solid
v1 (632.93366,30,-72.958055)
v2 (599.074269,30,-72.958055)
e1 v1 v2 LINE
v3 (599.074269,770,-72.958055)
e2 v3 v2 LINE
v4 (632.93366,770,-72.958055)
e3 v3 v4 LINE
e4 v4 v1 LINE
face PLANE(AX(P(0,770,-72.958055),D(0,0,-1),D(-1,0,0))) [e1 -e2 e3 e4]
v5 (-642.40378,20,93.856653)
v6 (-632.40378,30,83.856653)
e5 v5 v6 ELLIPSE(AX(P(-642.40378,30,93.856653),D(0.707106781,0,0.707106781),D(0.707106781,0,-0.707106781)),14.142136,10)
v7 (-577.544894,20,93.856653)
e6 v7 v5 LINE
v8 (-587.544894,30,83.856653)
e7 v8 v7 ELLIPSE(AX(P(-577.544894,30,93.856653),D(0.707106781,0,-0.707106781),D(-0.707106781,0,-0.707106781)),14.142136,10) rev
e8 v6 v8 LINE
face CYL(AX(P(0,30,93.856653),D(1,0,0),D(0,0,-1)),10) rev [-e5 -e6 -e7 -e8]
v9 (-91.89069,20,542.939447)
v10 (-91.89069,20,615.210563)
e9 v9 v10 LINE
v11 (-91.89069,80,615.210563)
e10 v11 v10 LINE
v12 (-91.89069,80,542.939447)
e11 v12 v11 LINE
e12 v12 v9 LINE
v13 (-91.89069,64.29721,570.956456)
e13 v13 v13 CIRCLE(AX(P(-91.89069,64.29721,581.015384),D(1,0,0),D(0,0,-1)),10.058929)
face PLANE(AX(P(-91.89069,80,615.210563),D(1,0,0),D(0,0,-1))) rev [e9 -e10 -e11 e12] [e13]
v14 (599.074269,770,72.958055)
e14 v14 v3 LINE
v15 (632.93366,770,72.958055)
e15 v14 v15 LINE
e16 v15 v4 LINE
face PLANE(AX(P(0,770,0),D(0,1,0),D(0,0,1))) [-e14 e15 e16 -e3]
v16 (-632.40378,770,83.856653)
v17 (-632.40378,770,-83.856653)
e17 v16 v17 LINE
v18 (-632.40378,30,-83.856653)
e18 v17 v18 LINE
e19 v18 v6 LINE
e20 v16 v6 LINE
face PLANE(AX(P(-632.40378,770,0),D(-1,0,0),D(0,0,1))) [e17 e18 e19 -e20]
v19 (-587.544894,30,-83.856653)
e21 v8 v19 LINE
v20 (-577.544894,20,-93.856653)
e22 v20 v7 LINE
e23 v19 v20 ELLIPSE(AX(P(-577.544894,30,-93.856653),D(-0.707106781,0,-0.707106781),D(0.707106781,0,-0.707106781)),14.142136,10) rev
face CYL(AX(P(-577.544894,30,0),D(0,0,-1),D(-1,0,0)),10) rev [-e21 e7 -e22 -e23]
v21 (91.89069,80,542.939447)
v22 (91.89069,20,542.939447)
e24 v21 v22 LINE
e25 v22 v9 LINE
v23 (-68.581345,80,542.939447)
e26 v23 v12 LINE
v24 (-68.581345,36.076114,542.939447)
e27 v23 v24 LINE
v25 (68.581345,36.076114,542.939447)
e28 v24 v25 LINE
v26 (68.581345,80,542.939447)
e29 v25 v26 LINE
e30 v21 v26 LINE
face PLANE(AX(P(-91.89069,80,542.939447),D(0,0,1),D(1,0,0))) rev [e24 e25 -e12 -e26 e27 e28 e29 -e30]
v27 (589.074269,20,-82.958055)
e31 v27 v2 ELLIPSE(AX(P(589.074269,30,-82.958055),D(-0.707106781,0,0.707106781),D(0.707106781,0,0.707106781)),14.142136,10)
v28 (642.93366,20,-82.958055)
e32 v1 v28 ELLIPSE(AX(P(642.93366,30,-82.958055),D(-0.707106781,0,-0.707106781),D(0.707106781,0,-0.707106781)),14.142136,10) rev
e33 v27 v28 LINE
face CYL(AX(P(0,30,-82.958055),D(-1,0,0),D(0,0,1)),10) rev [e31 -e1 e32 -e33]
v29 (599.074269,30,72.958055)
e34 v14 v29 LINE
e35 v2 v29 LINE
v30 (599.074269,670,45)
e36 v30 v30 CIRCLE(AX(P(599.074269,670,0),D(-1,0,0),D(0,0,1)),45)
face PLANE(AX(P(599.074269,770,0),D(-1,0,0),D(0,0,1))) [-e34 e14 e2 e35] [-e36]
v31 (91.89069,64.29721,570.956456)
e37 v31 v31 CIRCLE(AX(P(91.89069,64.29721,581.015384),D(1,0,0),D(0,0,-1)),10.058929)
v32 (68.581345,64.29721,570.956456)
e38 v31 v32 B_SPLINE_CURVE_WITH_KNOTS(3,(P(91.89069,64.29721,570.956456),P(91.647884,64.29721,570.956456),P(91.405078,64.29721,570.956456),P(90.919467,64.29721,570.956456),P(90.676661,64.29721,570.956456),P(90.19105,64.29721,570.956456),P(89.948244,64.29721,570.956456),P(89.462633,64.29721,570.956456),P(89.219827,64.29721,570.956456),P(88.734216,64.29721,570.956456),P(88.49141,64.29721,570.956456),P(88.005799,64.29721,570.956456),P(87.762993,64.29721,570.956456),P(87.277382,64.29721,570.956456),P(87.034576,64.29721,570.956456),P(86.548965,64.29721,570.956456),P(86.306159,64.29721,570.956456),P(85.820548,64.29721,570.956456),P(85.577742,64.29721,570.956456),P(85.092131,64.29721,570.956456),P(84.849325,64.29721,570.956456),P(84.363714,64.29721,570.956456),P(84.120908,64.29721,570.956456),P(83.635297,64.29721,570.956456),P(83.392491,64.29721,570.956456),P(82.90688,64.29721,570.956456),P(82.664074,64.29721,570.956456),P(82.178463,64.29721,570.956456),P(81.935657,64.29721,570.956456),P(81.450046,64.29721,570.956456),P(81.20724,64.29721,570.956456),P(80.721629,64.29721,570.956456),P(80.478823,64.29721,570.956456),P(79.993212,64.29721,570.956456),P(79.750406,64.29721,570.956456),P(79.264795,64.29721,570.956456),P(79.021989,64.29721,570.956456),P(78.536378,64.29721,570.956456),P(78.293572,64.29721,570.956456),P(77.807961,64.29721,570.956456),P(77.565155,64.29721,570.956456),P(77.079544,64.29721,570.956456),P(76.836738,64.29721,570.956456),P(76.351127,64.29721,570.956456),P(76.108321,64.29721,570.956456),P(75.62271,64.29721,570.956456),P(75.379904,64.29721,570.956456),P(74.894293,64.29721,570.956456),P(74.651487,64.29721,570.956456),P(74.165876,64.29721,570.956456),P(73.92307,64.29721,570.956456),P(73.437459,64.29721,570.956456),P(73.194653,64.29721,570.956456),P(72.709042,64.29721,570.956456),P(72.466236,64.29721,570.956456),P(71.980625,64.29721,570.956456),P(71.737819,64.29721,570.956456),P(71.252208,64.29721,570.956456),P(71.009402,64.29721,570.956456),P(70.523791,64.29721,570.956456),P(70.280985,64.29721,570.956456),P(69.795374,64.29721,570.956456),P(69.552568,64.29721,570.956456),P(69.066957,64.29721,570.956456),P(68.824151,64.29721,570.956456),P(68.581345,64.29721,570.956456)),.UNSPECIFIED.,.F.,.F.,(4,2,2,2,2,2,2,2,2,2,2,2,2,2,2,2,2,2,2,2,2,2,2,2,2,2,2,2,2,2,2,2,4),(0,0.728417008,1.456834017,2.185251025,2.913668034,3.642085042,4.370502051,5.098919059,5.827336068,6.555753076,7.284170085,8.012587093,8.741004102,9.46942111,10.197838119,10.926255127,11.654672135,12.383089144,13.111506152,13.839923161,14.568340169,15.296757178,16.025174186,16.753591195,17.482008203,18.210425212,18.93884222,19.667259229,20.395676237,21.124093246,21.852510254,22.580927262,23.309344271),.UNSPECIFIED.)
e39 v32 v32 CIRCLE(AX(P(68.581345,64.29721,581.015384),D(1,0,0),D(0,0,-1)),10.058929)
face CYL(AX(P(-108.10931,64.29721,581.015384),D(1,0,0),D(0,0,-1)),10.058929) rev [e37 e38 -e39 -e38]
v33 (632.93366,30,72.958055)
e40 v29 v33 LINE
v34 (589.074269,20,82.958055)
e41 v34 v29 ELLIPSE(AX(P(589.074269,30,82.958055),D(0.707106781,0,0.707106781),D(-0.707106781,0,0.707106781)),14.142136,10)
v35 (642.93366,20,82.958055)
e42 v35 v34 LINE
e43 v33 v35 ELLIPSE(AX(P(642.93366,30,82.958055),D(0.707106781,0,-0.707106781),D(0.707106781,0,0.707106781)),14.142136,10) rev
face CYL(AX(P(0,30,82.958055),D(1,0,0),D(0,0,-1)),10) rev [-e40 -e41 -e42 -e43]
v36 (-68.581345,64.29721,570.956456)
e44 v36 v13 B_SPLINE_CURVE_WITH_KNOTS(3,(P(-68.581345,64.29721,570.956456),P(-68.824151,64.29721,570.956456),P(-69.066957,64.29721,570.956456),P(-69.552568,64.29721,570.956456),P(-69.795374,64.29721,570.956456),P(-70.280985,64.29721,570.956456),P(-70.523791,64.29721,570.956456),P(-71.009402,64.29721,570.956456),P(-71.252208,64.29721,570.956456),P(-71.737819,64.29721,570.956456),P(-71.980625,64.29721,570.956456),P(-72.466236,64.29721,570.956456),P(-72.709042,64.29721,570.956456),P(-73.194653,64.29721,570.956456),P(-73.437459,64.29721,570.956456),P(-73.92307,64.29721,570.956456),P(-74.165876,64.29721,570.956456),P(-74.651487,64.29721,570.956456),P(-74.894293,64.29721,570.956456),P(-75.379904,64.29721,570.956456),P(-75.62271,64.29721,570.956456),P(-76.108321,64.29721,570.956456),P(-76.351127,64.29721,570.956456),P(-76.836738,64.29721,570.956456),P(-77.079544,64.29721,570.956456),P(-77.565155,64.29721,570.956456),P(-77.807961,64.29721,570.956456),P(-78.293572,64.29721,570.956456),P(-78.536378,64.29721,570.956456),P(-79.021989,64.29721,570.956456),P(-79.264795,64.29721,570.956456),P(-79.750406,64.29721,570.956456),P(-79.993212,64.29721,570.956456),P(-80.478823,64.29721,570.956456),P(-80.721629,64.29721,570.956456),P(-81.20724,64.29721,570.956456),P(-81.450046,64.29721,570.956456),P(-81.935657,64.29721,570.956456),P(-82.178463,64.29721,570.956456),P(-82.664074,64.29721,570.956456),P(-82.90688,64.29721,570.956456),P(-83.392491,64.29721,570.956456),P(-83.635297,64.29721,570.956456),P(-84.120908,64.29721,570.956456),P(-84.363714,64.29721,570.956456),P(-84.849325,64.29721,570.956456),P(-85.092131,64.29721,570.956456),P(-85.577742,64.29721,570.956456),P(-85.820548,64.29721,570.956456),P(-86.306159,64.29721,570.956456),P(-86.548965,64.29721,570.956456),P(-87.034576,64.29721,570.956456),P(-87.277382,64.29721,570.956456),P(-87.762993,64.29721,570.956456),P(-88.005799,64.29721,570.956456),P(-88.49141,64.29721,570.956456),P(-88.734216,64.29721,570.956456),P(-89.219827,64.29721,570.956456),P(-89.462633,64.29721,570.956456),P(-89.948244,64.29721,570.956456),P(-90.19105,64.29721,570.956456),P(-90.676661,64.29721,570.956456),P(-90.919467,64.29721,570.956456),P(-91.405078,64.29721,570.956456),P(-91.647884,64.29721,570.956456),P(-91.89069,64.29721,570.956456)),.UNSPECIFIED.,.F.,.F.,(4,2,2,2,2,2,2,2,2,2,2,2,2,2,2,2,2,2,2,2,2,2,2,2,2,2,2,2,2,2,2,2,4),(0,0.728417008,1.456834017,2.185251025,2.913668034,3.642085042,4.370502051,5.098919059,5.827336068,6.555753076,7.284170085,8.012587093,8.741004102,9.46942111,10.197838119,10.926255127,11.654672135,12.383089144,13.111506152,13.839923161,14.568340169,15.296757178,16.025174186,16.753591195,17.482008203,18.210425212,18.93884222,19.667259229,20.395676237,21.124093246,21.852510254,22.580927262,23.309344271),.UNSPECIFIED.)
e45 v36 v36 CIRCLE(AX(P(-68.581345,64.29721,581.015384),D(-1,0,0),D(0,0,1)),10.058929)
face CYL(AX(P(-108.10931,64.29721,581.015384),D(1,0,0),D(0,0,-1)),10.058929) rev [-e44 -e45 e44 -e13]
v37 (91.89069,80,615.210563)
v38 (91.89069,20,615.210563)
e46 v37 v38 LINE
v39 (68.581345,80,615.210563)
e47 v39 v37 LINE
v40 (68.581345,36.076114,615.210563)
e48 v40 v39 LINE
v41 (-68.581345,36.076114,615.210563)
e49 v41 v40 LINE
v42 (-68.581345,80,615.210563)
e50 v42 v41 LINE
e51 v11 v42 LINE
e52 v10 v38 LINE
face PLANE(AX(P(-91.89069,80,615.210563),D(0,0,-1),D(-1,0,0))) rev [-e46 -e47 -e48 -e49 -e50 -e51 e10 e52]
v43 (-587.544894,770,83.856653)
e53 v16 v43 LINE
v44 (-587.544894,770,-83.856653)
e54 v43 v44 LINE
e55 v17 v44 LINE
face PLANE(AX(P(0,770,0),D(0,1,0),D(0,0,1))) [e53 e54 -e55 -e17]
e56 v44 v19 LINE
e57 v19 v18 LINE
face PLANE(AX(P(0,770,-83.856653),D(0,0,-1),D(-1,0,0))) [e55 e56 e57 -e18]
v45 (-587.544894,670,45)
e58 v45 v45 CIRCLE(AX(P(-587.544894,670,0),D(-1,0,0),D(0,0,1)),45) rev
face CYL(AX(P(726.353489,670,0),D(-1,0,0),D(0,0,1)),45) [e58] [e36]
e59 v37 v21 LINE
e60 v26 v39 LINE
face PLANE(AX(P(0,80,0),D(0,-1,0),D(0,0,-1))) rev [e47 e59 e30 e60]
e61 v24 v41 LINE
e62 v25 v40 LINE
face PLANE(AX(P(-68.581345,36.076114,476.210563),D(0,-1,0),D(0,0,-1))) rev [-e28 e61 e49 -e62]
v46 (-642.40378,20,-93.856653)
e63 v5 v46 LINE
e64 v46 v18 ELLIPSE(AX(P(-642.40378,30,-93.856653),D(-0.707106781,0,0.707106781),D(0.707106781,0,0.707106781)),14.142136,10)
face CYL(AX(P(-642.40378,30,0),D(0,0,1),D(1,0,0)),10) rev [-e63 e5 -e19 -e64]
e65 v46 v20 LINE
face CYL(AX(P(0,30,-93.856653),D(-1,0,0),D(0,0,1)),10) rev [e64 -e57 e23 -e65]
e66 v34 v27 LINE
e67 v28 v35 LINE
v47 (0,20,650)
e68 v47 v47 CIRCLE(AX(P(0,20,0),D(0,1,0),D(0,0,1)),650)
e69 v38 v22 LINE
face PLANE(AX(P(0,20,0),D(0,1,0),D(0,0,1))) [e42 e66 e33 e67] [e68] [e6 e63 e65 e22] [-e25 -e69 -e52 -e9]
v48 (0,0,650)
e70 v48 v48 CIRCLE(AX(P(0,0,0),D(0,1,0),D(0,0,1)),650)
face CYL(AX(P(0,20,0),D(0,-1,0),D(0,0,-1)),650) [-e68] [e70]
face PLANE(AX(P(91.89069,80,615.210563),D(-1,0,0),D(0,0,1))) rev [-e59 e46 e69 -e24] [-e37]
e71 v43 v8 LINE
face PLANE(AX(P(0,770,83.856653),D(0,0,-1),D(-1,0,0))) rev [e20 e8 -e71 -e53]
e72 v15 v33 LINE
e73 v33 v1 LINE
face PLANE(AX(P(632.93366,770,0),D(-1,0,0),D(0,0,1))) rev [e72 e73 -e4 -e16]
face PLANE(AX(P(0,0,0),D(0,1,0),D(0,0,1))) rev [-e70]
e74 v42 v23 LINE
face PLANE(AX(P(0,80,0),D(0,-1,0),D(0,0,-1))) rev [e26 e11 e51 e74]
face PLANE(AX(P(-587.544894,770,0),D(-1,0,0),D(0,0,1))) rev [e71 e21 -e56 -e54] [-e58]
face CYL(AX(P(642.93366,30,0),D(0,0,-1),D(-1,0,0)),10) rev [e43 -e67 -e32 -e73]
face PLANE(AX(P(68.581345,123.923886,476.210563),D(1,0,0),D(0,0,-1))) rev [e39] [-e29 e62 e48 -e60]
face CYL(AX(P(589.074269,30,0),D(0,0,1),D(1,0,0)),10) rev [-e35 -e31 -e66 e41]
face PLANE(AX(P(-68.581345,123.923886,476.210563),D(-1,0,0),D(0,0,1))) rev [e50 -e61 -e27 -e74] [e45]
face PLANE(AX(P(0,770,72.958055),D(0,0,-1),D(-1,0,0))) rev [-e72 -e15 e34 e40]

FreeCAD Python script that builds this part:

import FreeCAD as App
import Part
import Sketcher
from FreeCAD import Vector


def edges_at(feature, points):
    """Names of the edges that pass closest to the given points."""
    edges = feature.Shape.Edges
    near = lambda p: min(range(len(edges)), key=lambda i: edges[i].distToShape(Part.Vertex(*p))[0])
    return sorted({f"Edge{near(p) + 1}" for p in points})

doc = App.newDocument("Part")
params = doc.addObject("Spreadsheet::Sheet", "Params")
for row, (alias, value) in enumerate([
    ("sketch1_diameter", "1300 mm"),
    ("pad1_length", "20 mm"),
    ("pad2_length", "750 mm"),
    ("sketch3_diameter", "90 mm"),
    ("pad3_length", "1186.619163 mm"),
    ("fillet_radius", "10 mm"),
    ("pad4_length", "60 mm"),
    ("pocket1_length", "139 mm"),
    ("pocket2_length", "200 mm"),
], start=1):
    params.set(f"A{row}", alias)
    params.set(f"B{row}", "=" + value)
    params.setAlias(f"B{row}", alias)

body = doc.addObject("PartDesign::Body", "Body")

# Sketch on XZ plane
sketch1 = doc.addObject("Sketcher::SketchObject", "Sketch")
body.addObject(sketch1)
sketch1.AttachmentSupport = (doc.XZ_Plane, [""])
sketch1.MapMode = "FlatFace"
sketch1.addGeometry(Part.Circle(Vector(0, 0, 0), Vector(0, 0, 1), 650), False)
sketch1.addConstraint([
    Sketcher.Constraint("Coincident", 0, 3, -1, 1),
    Sketcher.Constraint("Diameter", 0, 1300.0),
])
sketch1.setExpression("Constraints[1]", "Params.sketch1_diameter")
pad1 = doc.addObject("PartDesign::Pad", "Pad")
body.addObject(pad1)
pad1.Profile = sketch1
pad1.setExpression("Length", "Params.pad1_length")
pad1.Reversed = True

# Sketch on XZ plane
sketch2 = doc.addObject("Sketcher::SketchObject", "Sketch001")
body.addObject(sketch2)
sketch2.AttachmentSupport = (doc.XZ_Plane, [""])
sketch2.MapMode = "FlatFace"
sketch2.AttachmentOffset = App.Placement(Vector(0, 0, -20), App.Rotation())
sketch2.addGeometry([
    Part.LineSegment(Vector(599, 73, 0), Vector(633, 73, 0)),  # 0
    Part.LineSegment(Vector(633, 73, 0), Vector(633, -73, 0)),  # 1
    Part.LineSegment(Vector(633, -73, 0), Vector(599, -73, 0)),  # 2
    Part.LineSegment(Vector(599, -73, 0), Vector(599, 73, 0)),  # 3
    Part.LineSegment(Vector(-632, 84, 0), Vector(-588, 84, 0)),  # 4
    Part.LineSegment(Vector(-588, 84, 0), Vector(-588, -84, 0)),  # 5
    Part.LineSegment(Vector(-588, -84, 0), Vector(-632, -84, 0)),  # 6
    Part.LineSegment(Vector(-632, -84, 0), Vector(-632, 84, 0)),  # 7
], False)
sketch2.addConstraint([
    Sketcher.Constraint("Coincident", 0, 2, 1, 1),
    Sketcher.Constraint("Coincident", 1, 2, 2, 1),
    Sketcher.Constraint("Coincident", 2, 2, 3, 1),
    Sketcher.Constraint("Coincident", 3, 2, 0, 1),
    Sketcher.Constraint("Coincident", 4, 2, 5, 1),
    Sketcher.Constraint("Coincident", 5, 2, 6, 1),
    Sketcher.Constraint("Coincident", 6, 2, 7, 1),
    Sketcher.Constraint("Coincident", 7, 2, 4, 1),
    Sketcher.Constraint("Horizontal", 0),
    Sketcher.Constraint("Vertical", 1),
    Sketcher.Constraint("Horizontal", 2),
    Sketcher.Constraint("Vertical", 3),
    Sketcher.Constraint("Horizontal", 4),
    Sketcher.Constraint("Vertical", 5),
    Sketcher.Constraint("Horizontal", 6),
    Sketcher.Constraint("Vertical", 7),
    Sketcher.Constraint("DistanceX", 0, 1, 0, 2, 33.859391),
    Sketcher.Constraint("DistanceY", 1, 2, 1, 1, 145.916111),
    Sketcher.Constraint("DistanceX", 4, 1, 4, 2, 44.858886),
    Sketcher.Constraint("DistanceY", 5, 2, 5, 1, 167.713306),
    Sketcher.Constraint("DistanceX", -1, 1, 0, 2, 632.93366),
    Sketcher.Constraint("DistanceX", 6, 2, -1, 1, 632.40378),
    Sketcher.Constraint("DistanceY", 2, 2, 4, 2, 156.814708),
    Sketcher.Constraint("DistanceY", -1, 1, 0, 2, 72.958055),
])
pad2 = doc.addObject("PartDesign::Pad", "Pad001")
body.addObject(pad2)
pad2.Profile = sketch2
pad2.setExpression("Length", "Params.pad2_length")
pad2.Reversed = True

# Sketch on YZ plane
sketch3 = doc.addObject("Sketcher::SketchObject", "Sketch002")
body.addObject(sketch3)
sketch3.AttachmentSupport = (doc.YZ_Plane, [""])
sketch3.MapMode = "FlatFace"
sketch3.AttachmentOffset = App.Placement(Vector(0, 0, -587.544894), App.Rotation())
sketch3.addGeometry(Part.Circle(Vector(670, 0, 0), Vector(0, 0, 1), 45), False)
sketch3.addConstraint([
    Sketcher.Constraint("PointOnObject", 0, 3, -1),
    Sketcher.Constraint("Diameter", 0, 90.0),
    Sketcher.Constraint("DistanceX", -1, 1, 0, 3, 670.0),
])
sketch3.setExpression("Constraints[1]", "Params.sketch3_diameter")
pad3 = doc.addObject("PartDesign::Pad", "Pad002")
body.addObject(pad3)
pad3.Profile = sketch3
pad3.setExpression("Length", "Params.pad3_length")
doc.recompute()

fillet = doc.addObject("PartDesign::Fillet", "Fillet")
body.addObject(fillet)
fillet.Base = (pad3, edges_at(pad3, [
    (616.004, 20, -72.958),
    (-609.974, 20, 83.857),
    (-587.545, 20, 0),
    (-632.404, 20, 0),
    (-609.974, 20, -83.857),
    (616.004, 20, 72.958),
    (632.934, 20, 0),
    (599.074, 20, 0),
]))
fillet.setExpression("Radius", "Params.fillet_radius")

# Sketch on XZ plane
sketch4 = doc.addObject("Sketcher::SketchObject", "Sketch003")
body.addObject(sketch4)
sketch4.AttachmentSupport = (doc.XZ_Plane, [""])
sketch4.MapMode = "FlatFace"
sketch4.AttachmentOffset = App.Placement(Vector(0, 0, -20), App.Rotation())
sketch4.addGeometry([
    Part.LineSegment(Vector(-92, 543, 0), Vector(-92, 615, 0)),
    Part.LineSegment(Vector(-92, 615, 0), Vector(92, 615, 0)),
    Part.LineSegment(Vector(92, 615, 0), Vector(92, 543, 0)),
    Part.LineSegment(Vector(92, 543, 0), Vector(-92, 543, 0)),
], False)
sketch4.addConstraint([
    Sketcher.Constraint("Coincident", 0, 2, 1, 1),
    Sketcher.Constraint("Coincident", 1, 2, 2, 1),
    Sketcher.Constraint("Coincident", 2, 2, 3, 1),
    Sketcher.Constraint("Coincident", 3, 2, 0, 1),
    Sketcher.Constraint("Vertical", 0),
    Sketcher.Constraint("Horizontal", 1),
    Sketcher.Constraint("Vertical", 2),
    Sketcher.Constraint("Horizontal", 3),
    Sketcher.Constraint("DistanceX", 1, 1, 1, 2, 183.781379),
    Sketcher.Constraint("DistanceY", 0, 1, 0, 2, 72.271116),
    Sketcher.Constraint("DistanceX", 0, 2, -1, 1, 91.89069),
    Sketcher.Constraint("DistanceY", -1, 1, 0, 2, 615.210563),
])
pad4 = doc.addObject("PartDesign::Pad", "Pad003")
body.addObject(pad4)
pad4.Profile = sketch4
pad4.setExpression("Length", "Params.pad4_length")
pad4.Reversed = True

# Sketch on XY plane
sketch5 = doc.addObject("Sketcher::SketchObject", "Sketch004")
body.addObject(sketch5)
sketch5.AttachmentSupport = (doc.XY_Plane, [""])
sketch5.MapMode = "FlatFace"
sketch5.AttachmentOffset = App.Placement(Vector(0, 0, 615.210563), App.Rotation())
sketch5.addGeometry([
    Part.LineSegment(Vector(-69, 124, 0), Vector(-69, 36, 0)),
    Part.LineSegment(Vector(-69, 36, 0), Vector(69, 36, 0)),
    Part.LineSegment(Vector(69, 36, 0), Vector(69, 124, 0)),
    Part.LineSegment(Vector(69, 124, 0), Vector(-69, 124, 0)),
], False)
sketch5.addConstraint([
    Sketcher.Constraint("Coincident", 0, 2, 1, 1),
    Sketcher.Constraint("Coincident", 1, 2, 2, 1),
    Sketcher.Constraint("Coincident", 2, 2, 3, 1),
    Sketcher.Constraint("Coincident", 3, 2, 0, 1),
    Sketcher.Constraint("Vertical", 0),
    Sketcher.Constraint("Horizontal", 1),
    Sketcher.Constraint("Vertical", 2),
    Sketcher.Constraint("Horizontal", 3),
    Sketcher.Constraint("DistanceX", 1, 1, 1, 2, 137.162691),
    Sketcher.Constraint("DistanceY", 0, 2, 0, 1, 87.847772),
    Sketcher.Constraint("DistanceX", 0, 2, -1, 1, 68.581345),
    Sketcher.Constraint("DistanceY", -1, 1, 0, 2, 36.076114),
])
pocket1 = doc.addObject("PartDesign::Pocket", "Pocket")
body.addObject(pocket1)
pocket1.Profile = sketch5
pocket1.setExpression("Length", "Params.pocket1_length")

# Sketch on YZ plane
sketch6 = doc.addObject("Sketcher::SketchObject", "Sketch005")
body.addObject(sketch6)
sketch6.AttachmentSupport = (doc.YZ_Plane, [""])
sketch6.MapMode = "FlatFace"
sketch6.AttachmentOffset = App.Placement(Vector(0, 0, 91.89069), App.Rotation())
sketch6.addGeometry(Part.Circle(Vector(64, 581, 0), Vector(0, 0, 1), 10), False)
sketch6.addConstraint([
    Sketcher.Constraint("Diameter", 0, 20.117858),
    Sketcher.Constraint("DistanceX", -1, 1, 0, 3, 64.29721),
    Sketcher.Constraint("DistanceY", -1, 1, 0, 3, 581.015384),
])
pocket2 = doc.addObject("PartDesign::Pocket", "Pocket001")
body.addObject(pocket2)
pocket2.Profile = sketch6
pocket2.setExpression("Length", "Params.pocket2_length")

doc.recompute()
